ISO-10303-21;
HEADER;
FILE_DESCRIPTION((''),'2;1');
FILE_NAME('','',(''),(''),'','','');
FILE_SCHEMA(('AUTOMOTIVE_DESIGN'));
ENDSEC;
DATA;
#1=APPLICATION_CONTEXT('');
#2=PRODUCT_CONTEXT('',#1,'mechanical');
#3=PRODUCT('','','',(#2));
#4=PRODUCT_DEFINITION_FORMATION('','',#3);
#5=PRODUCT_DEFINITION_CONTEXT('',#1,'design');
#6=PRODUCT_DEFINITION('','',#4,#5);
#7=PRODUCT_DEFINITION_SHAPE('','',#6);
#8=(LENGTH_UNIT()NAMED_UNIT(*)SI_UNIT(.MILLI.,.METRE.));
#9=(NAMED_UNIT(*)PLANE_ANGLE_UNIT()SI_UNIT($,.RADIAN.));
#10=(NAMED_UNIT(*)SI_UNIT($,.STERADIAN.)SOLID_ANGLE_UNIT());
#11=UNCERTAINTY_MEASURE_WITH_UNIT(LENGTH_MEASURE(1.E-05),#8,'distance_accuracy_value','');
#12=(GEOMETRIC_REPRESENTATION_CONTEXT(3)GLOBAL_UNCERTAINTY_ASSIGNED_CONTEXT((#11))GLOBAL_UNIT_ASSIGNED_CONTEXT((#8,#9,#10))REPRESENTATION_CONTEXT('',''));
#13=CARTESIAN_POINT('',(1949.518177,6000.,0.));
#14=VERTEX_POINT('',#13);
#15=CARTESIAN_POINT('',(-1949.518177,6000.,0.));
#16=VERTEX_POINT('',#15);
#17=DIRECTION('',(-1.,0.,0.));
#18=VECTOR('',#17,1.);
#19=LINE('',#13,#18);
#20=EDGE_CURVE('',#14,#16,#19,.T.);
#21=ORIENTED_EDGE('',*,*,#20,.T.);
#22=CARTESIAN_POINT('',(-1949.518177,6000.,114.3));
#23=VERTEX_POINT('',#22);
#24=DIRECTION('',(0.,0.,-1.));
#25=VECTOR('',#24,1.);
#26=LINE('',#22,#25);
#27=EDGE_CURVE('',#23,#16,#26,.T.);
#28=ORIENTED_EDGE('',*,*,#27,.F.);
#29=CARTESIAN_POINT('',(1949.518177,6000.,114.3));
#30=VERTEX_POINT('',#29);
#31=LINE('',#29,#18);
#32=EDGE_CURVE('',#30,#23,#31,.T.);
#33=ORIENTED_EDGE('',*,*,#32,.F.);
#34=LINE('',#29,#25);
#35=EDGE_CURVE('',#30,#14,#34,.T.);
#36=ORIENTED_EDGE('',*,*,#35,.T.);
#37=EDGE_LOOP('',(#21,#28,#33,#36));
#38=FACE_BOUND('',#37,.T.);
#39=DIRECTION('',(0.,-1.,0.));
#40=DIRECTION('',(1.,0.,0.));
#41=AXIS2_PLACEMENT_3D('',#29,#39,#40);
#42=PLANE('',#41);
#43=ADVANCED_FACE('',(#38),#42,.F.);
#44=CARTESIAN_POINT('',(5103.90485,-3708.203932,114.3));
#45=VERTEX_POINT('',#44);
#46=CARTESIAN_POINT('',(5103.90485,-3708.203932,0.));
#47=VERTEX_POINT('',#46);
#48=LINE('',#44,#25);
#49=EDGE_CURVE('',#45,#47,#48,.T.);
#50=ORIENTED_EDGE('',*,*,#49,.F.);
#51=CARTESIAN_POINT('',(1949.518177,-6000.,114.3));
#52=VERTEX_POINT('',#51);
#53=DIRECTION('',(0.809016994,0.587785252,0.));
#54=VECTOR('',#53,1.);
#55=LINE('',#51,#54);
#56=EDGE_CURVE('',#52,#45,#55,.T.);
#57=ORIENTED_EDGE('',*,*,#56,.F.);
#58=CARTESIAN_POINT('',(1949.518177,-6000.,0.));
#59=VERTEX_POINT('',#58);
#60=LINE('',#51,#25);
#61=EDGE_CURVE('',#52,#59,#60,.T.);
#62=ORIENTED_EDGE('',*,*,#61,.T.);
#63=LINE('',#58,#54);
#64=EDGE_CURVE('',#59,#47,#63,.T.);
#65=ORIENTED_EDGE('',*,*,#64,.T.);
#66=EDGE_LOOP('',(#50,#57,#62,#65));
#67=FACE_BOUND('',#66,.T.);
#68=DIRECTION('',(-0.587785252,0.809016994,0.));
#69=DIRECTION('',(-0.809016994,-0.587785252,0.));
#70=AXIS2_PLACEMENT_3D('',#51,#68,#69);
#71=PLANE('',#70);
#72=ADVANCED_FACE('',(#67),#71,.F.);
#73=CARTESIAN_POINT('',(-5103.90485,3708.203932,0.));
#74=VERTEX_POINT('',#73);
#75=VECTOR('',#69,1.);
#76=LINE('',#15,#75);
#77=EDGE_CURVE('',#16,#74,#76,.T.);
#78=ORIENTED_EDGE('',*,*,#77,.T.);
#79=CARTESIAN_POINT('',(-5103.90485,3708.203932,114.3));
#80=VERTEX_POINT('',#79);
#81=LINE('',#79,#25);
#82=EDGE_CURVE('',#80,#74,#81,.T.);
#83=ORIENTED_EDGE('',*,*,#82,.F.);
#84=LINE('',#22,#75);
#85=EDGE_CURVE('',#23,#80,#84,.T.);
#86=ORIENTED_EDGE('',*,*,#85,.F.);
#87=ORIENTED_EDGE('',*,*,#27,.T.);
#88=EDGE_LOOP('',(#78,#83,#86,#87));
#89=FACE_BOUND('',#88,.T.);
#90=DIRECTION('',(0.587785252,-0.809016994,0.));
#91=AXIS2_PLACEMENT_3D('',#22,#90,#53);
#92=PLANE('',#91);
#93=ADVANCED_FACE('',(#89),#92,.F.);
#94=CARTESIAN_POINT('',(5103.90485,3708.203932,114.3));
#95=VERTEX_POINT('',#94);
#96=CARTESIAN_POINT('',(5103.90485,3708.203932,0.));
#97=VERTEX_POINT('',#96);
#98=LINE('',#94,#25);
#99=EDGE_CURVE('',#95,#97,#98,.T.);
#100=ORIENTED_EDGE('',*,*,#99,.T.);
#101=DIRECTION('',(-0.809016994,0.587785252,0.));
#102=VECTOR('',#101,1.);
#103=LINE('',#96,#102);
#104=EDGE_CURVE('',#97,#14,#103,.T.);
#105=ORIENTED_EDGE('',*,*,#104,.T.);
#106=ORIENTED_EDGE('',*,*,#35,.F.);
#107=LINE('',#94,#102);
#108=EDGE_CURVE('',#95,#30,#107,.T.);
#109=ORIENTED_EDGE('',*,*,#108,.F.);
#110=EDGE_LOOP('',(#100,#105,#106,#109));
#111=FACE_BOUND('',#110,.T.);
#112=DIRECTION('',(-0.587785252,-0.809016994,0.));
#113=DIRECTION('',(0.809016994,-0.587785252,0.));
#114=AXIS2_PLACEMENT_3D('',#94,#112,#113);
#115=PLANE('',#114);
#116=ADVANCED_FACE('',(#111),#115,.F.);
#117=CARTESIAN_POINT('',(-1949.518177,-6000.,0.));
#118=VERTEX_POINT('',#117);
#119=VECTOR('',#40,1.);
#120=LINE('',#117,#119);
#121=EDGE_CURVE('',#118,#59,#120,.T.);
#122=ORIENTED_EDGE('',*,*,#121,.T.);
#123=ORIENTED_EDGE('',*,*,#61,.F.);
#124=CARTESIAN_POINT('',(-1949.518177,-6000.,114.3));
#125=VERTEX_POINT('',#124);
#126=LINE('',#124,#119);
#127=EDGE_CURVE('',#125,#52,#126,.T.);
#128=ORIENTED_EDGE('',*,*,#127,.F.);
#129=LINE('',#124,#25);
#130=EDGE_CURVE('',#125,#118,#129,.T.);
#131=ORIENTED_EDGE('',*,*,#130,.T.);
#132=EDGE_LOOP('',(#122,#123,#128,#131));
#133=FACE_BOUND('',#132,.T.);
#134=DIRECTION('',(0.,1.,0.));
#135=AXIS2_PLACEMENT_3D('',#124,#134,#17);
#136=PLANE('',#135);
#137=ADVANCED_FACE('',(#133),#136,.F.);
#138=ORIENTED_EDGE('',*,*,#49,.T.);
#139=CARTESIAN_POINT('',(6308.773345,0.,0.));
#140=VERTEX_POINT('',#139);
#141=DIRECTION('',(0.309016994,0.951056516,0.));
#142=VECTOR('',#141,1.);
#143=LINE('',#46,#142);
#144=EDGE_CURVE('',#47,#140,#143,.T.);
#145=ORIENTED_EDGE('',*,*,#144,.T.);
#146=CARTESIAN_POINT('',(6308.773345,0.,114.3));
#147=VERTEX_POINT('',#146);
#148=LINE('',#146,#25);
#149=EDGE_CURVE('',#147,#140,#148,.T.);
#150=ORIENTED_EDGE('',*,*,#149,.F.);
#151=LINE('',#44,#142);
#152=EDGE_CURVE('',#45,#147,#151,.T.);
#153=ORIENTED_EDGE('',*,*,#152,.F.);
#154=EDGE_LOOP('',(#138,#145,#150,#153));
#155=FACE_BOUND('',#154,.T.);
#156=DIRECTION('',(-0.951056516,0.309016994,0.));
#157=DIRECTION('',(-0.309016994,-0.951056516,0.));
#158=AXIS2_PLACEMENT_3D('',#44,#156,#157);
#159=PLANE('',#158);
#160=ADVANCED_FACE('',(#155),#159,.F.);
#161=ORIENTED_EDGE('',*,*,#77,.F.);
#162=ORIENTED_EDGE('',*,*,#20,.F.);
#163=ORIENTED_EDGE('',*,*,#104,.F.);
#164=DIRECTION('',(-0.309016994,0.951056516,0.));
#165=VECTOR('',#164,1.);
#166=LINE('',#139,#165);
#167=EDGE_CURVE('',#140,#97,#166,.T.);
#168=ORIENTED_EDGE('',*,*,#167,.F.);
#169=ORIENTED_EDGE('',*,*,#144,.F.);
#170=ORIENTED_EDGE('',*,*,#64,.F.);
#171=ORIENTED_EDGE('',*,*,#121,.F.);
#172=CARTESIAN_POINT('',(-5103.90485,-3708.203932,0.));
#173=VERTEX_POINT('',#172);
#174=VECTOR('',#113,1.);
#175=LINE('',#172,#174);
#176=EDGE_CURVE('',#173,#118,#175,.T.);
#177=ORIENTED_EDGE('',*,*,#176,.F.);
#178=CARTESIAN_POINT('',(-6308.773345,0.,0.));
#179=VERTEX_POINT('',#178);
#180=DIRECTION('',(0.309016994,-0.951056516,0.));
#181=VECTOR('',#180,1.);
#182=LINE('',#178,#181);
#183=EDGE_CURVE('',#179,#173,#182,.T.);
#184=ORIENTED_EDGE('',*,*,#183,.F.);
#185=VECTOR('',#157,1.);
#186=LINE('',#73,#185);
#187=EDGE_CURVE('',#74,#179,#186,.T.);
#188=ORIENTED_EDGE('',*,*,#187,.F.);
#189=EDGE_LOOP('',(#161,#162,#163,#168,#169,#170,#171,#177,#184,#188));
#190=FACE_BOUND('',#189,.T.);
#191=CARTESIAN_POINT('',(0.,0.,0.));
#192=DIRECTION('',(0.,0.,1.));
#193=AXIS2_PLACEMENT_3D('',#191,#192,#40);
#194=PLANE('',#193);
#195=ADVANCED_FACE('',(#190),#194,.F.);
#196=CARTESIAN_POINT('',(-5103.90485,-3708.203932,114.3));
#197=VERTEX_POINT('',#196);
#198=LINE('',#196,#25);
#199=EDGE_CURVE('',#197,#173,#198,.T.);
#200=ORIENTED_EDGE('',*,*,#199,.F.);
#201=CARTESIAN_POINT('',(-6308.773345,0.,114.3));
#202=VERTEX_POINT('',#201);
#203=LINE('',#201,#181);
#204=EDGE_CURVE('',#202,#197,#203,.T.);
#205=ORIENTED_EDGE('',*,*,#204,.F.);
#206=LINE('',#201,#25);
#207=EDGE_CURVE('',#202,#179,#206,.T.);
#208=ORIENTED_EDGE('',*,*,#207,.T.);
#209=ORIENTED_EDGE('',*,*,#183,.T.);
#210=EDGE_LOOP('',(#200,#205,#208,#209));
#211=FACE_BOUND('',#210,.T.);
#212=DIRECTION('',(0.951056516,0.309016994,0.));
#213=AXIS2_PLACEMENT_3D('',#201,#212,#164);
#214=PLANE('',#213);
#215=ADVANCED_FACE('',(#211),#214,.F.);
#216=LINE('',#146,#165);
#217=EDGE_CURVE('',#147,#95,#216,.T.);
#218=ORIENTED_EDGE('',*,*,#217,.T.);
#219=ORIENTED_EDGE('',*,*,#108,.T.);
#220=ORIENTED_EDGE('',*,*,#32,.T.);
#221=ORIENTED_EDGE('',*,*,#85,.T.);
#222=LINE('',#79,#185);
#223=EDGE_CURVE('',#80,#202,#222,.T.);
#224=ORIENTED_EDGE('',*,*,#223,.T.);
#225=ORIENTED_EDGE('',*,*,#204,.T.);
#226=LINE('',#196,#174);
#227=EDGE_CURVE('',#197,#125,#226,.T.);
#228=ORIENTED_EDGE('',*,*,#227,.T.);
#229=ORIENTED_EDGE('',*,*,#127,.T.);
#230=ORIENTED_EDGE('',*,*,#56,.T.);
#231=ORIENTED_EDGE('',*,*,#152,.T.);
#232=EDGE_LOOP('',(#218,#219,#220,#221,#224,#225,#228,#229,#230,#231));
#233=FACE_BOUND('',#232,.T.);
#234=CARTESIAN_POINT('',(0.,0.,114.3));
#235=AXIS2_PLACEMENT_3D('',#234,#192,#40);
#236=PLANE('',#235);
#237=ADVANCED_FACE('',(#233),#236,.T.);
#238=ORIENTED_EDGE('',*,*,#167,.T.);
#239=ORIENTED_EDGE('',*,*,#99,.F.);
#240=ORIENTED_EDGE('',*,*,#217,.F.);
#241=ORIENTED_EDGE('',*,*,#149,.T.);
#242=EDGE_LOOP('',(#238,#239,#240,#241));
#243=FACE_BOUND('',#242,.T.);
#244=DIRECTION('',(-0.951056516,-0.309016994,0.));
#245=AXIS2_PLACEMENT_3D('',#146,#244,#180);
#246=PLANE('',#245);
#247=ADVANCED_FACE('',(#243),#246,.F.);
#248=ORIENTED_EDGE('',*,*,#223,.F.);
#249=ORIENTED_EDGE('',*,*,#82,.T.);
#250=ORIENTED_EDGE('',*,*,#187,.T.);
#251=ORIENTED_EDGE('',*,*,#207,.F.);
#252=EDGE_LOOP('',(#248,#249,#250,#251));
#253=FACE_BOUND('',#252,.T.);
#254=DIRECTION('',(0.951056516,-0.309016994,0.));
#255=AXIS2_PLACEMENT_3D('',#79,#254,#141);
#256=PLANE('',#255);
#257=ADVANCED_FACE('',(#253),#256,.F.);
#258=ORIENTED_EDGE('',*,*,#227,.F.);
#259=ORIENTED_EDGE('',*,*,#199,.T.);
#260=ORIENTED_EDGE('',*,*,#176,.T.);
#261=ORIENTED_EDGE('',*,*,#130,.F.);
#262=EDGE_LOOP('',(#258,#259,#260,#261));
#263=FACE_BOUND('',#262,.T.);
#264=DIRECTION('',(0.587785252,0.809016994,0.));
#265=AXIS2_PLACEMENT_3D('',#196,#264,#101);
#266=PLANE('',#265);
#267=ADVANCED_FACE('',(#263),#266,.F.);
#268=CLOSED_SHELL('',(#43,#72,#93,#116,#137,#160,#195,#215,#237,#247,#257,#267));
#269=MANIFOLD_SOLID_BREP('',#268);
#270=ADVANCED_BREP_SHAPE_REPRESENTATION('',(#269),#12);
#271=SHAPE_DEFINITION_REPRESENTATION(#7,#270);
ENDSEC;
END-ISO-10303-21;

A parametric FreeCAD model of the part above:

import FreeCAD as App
import Part
import Sketcher

V = App.Vector
Q = App.Units.Quantity

doc = App.newDocument("Part")
body = doc.addObject("PartDesign::Body", "Body")

# Sketch on XY plane
sketch1 = body.newObject("Sketcher::SketchObject", "Sketch")
sketch1.AttachmentSupport = (doc.getObject("XY_Plane"), [""])
sketch1.MapMode = "FlatFace"
sketch1.addGeometry(Part.LineSegment(V(6308.773345, 0, 0), V(5103.90485, 3708.203932, 0)), False)
sketch1.addGeometry(Part.LineSegment(V(5103.90485, 3708.203932, 0), V(1949.518177, 6000, 0)), False)
sketch1.addGeometry(Part.LineSegment(V(1949.518177, 6000, 0), V(-1949.518177, 6000, 0)), False)
sketch1.addGeometry(Part.LineSegment(V(-1949.518177, 6000, 0), V(-5103.90485, 3708.203932, 0)), False)
sketch1.addGeometry(Part.LineSegment(V(-5103.90485, 3708.203932, 0), V(-6308.773345, 0, 0)), False)
sketch1.addGeometry(Part.LineSegment(V(-6308.773345, 0, 0), V(-5103.90485, -3708.203932, 0)), False)
sketch1.addGeometry(Part.LineSegment(V(-5103.90485, -3708.203932, 0), V(-1949.518177, -6000, 0)), False)
sketch1.addGeometry(Part.LineSegment(V(-1949.518177, -6000, 0), V(1949.518177, -6000, 0)), False)
sketch1.addGeometry(Part.LineSegment(V(1949.518177, -6000, 0), V(5103.90485, -3708.203932, 0)), False)
sketch1.addGeometry(Part.LineSegment(V(5103.90485, -3708.203932, 0), V(6308.773345, 0, 0)), False)
sketch1.addConstraint(Sketcher.Constraint("Coincident", 0, 2, 1, 1))
sketch1.addConstraint(Sketcher.Constraint("Coincident", 1, 2, 2, 1))
sketch1.addConstraint(Sketcher.Constraint("Coincident", 2, 2, 3, 1))
sketch1.addConstraint(Sketcher.Constraint("Coincident", 3, 2, 4, 1))
sketch1.addConstraint(Sketcher.Constraint("Coincident", 4, 2, 5, 1))
sketch1.addConstraint(Sketcher.Constraint("Coincident", 5, 2, 6, 1))
sketch1.addConstraint(Sketcher.Constraint("Coincident", 6, 2, 7, 1))
sketch1.addConstraint(Sketcher.Constraint("Coincident", 7, 2, 8, 1))
sketch1.addConstraint(Sketcher.Constraint("Coincident", 8, 2, 9, 1))
sketch1.addConstraint(Sketcher.Constraint("Coincident", 9, 2, 0, 1))
sketch1.addConstraint(Sketcher.Constraint("Horizontal", 2))
sketch1.addConstraint(Sketcher.Constraint("Horizontal", 7))
sketch1.addConstraint(Sketcher.Constraint("Symmetric", 0, 2, 5, 2, -1, 1))
sketch1.addConstraint(Sketcher.Constraint("Symmetric", 1, 2, 6, 2, -1, 1))
sketch1.addConstraint(Sketcher.Constraint("Symmetric", 3, 2, 8, 2, -1, 1))
sketch1.addConstraint(Sketcher.Constraint("Symmetric", 4, 2, 9, 2, -1, 1))
sketch1.addConstraint(Sketcher.Constraint("Symmetric", 0, 2, 3, 2, -2))
sketch1.addConstraint(Sketcher.Constraint("PointOnObject", 4, 2, -1))
sketch1.addConstraint(Sketcher.Constraint("Parallel", 3, 8))
sketch1.addConstraint(Sketcher.Constraint("Vertical", 2, 2, 6, 2))
sketch1.addConstraint(Sketcher.Constraint("Equal", 0, 1))
sketch1.addConstraint(Sketcher.Constraint("Angle", 0, Q("108 deg")))
sketch1.addConstraint(Sketcher.Constraint("Angle", 1, Q("144 deg")))
sketch1.addConstraint(Sketcher.Constraint("DistanceY", -1, 1, 1, 2, Q("6000 mm")))
sketch1.addConstraint(Sketcher.Constraint("DistanceX", 3, 2, 0, 2, Q("10207.8097 mm")))
pad1 = body.newObject("PartDesign::Pad", "Pad")
pad1.Profile = sketch1
pad1.Length = Q("4.5 in")

doc.recompute()
